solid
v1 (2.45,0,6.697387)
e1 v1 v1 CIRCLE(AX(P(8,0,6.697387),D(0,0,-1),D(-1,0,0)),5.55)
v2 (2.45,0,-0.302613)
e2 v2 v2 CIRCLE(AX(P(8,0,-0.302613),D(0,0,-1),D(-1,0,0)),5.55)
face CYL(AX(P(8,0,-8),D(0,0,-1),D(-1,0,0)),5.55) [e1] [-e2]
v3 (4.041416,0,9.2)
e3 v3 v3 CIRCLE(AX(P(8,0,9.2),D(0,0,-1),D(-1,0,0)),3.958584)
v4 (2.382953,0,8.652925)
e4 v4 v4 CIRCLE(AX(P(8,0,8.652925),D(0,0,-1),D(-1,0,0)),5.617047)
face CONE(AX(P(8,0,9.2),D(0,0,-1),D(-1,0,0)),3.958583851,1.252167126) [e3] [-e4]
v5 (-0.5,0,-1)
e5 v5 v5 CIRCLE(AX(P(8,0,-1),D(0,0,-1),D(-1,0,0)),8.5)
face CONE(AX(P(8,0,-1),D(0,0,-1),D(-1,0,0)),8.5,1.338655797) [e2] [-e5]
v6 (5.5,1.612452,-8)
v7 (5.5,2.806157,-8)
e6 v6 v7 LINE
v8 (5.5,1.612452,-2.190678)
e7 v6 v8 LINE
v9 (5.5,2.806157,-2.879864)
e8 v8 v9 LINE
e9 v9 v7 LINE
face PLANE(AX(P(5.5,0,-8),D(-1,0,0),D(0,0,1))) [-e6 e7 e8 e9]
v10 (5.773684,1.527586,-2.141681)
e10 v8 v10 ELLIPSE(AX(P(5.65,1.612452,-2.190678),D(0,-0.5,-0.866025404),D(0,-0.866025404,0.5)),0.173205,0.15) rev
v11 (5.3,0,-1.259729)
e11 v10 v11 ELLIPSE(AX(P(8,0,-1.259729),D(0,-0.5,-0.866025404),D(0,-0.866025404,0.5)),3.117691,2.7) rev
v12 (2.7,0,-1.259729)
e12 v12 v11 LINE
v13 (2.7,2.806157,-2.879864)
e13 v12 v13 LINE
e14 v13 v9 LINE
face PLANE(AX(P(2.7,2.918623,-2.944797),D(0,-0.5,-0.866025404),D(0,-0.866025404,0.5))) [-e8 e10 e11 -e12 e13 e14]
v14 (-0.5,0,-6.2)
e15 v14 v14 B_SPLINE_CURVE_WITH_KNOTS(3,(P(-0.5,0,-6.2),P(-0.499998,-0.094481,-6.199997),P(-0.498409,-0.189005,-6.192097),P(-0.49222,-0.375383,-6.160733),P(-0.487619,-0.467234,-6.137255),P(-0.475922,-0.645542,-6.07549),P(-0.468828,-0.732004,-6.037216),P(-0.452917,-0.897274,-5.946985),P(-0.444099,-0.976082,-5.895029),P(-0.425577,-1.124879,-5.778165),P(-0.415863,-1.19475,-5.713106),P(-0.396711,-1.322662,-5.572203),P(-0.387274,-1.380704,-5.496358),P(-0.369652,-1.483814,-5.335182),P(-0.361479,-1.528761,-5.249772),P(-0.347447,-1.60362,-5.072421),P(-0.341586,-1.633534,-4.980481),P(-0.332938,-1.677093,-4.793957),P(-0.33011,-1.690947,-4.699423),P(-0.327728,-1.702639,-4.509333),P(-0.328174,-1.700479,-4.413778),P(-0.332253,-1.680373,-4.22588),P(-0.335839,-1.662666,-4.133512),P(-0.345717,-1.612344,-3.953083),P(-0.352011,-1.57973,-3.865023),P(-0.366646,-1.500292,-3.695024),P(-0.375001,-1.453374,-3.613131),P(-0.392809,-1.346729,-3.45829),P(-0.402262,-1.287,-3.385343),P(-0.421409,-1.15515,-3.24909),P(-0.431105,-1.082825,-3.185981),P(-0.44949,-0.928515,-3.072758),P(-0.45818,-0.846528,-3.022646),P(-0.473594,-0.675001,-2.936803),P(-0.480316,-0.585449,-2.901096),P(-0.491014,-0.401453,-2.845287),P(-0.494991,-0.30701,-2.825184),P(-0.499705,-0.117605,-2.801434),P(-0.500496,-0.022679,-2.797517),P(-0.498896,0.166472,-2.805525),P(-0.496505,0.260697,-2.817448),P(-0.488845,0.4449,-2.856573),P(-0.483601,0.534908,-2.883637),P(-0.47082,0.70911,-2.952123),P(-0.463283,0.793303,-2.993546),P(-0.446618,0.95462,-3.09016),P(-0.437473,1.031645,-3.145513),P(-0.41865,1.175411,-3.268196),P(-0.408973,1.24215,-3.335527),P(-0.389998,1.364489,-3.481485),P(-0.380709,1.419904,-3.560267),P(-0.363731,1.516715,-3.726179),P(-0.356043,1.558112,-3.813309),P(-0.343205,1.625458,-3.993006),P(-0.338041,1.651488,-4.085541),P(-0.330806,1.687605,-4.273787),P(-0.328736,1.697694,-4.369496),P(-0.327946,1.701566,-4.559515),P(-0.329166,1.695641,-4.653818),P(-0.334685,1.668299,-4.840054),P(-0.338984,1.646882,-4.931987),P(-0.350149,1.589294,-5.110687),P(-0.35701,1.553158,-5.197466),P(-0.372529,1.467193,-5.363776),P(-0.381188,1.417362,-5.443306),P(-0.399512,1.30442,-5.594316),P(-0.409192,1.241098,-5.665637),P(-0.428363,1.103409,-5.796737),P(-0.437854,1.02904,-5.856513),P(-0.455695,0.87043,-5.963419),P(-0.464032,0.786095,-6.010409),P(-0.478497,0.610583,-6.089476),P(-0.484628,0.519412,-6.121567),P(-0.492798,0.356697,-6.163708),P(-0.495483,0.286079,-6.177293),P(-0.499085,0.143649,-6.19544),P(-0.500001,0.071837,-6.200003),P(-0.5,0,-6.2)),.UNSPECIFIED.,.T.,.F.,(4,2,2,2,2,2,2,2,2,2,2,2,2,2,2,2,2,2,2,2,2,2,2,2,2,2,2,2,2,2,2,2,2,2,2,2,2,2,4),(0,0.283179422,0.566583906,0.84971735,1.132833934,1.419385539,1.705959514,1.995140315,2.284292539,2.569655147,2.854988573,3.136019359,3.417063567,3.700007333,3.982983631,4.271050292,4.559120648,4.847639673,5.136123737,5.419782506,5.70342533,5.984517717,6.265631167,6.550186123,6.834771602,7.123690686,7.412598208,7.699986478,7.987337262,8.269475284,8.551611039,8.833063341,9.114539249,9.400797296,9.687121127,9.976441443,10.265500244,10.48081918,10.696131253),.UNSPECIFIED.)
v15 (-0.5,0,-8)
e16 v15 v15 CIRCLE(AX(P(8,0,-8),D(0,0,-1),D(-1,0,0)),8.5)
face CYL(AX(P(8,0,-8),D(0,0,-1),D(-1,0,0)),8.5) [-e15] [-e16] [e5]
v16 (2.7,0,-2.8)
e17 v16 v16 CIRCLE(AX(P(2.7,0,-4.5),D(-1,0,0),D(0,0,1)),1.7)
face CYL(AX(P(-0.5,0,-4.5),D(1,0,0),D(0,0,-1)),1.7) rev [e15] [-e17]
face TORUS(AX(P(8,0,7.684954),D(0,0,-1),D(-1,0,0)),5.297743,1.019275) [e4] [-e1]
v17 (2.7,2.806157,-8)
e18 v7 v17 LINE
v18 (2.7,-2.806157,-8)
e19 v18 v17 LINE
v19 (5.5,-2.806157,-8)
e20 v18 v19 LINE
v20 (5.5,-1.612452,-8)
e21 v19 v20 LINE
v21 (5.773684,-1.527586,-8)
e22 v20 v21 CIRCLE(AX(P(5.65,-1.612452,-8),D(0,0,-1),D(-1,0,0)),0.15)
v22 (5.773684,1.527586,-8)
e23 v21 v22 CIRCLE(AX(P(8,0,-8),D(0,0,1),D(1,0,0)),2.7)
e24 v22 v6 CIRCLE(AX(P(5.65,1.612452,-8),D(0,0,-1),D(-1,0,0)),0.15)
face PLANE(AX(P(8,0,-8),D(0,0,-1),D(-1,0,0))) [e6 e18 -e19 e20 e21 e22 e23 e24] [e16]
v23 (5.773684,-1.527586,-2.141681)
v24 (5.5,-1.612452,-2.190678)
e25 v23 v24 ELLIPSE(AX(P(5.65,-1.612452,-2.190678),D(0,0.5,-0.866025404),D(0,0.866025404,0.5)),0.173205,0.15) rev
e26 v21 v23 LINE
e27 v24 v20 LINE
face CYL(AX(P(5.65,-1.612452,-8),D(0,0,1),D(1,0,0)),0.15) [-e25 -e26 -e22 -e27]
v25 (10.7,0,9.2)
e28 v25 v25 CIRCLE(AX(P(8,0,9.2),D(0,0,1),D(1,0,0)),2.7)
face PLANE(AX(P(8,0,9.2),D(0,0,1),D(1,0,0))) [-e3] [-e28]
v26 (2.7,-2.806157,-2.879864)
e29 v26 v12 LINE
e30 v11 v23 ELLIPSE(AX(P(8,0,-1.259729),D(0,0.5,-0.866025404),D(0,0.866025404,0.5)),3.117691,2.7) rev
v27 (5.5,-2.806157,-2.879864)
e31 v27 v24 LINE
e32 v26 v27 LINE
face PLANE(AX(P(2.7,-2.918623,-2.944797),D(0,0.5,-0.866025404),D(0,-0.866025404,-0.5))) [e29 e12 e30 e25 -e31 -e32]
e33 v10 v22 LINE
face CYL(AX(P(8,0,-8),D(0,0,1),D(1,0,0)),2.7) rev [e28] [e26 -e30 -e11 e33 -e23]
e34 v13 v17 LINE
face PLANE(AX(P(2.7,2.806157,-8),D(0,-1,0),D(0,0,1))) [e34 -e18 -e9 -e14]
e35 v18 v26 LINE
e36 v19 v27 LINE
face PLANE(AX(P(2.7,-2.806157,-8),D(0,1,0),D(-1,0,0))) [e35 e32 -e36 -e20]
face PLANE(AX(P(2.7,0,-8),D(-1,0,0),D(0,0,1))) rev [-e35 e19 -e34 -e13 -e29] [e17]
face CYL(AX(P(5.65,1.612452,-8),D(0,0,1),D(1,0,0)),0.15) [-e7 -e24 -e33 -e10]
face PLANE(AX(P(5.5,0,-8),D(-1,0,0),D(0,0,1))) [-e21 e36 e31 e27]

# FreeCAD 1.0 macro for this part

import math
import FreeCAD as App
import Part
import Sketcher
Q = App.Units.Quantity


def edges_at(feature, points):
    """Names of the edges that pass closest to the given points."""
    edges = feature.Shape.Edges
    near = lambda p: min(range(len(edges)), key=lambda i: edges[i].distToShape(Part.Vertex(*p))[0])
    return sorted({f"Edge{near(p) + 1}" for p in points})

doc = App.newDocument("Part")
body = doc.addObject("PartDesign::Body", "Body")

sketch1 = doc.addObject("Sketcher::SketchObject", "Sketch")
body.addObject(sketch1)
sketch1.AttachmentSupport = (doc.XY_Plane, [""])
sketch1.MapMode = "FlatFace"
sketch1.addGeometry([
    Part.LineSegment(App.Vector(0, 8.5, 0), App.Vector(0, 0, 0)),
    Part.LineSegment(App.Vector(0, 0, 0), App.Vector(17.2, 0, 0)),
    Part.LineSegment(App.Vector(17.2, 0, 0), App.Vector(17.2, 4, 0)),
    Part.LineSegment(App.Vector(17.2, 4, 0), App.Vector(16.7, 5.6, 0)),
    Part.ArcOfCircle(Part.Circle(App.Vector(15.7, 5.3, 0), App.Vector(0, 0, 1), 1), math.radians(18), math.radians(166)),
    Part.LineSegment(App.Vector(14.7, 5.5, 0), App.Vector(7.7, 5.5, 0)),
    Part.LineSegment(App.Vector(7.7, 5.5, 0), App.Vector(7, 8.5, 0)),
    Part.LineSegment(App.Vector(7, 8.5, 0), App.Vector(0, 8.5, 0)),
], False)
sketch1.addConstraint([
    Sketcher.Constraint("Coincident", 0, 2, 1, 1),
    Sketcher.Constraint("Coincident", 1, 2, 2, 1),
    Sketcher.Constraint("Coincident", 2, 2, 3, 1),
    Sketcher.Constraint("Tangent", 3, 2, 4, 1),
    Sketcher.Constraint("Coincident", 4, 2, 5, 1),
    Sketcher.Constraint("Coincident", 5, 2, 6, 1),
    Sketcher.Constraint("Coincident", 6, 2, 7, 1),
    Sketcher.Constraint("Coincident", 7, 2, 0, 1),
    Sketcher.Constraint("Vertical", 0),
    Sketcher.Constraint("Horizontal", 1),
    Sketcher.Constraint("Vertical", 2),
    Sketcher.Constraint("Horizontal", 5),
    Sketcher.Constraint("Horizontal", 7),
    Sketcher.Constraint("Coincident", 0, 2, -1, 1),
    Sketcher.Constraint("Equal", 5, 7),
    Sketcher.Constraint("DistanceX", 5, 2, 5, 1, Q("7 mm")),
    Sketcher.Constraint("DistanceX", 1, 1, 1, 2, Q("17.2 mm")),
    Sketcher.Constraint("DistanceY", 0, 2, 0, 1, Q("8.5 mm")),
    Sketcher.Constraint("DistanceY", -1, 1, 4, 2, Q("5.55 mm")),
    Sketcher.Constraint("Radius", 4, Q("1.019275 mm")),
    Sketcher.Constraint("Distance", 6, Q("3.031311 mm")),
    Sketcher.Constraint("DistanceY", 2, 1, 2, 2, Q("3.958584 mm")),
    Sketcher.Constraint("DistanceY", 2, 2, 4, 3, Q("1.33916 mm")),
])
revolution = doc.addObject("PartDesign::Revolution", "Revolution")
body.addObject(revolution)
revolution.Profile = sketch1
revolution.ReferenceAxis = (sketch1, ["H_Axis"])
revolution.Angle = 360

sketch2 = doc.addObject("Sketcher::SketchObject", "Sketch001")
body.addObject(sketch2)
sketch2.AttachmentSupport = (doc.YZ_Plane, [""])
sketch2.MapMode = "FlatFace"
sketch2.AttachmentOffset = App.Placement(App.Vector(0, 0, 18.2), App.Rotation())
sketch2.addGeometry(Part.Circle(App.Vector(0, 0, 0), App.Vector(0, 0, 1), 2.7), False)
sketch2.addConstraint([
    Sketcher.Constraint("Coincident", 0, 3, -1, 1),
    Sketcher.Constraint("Diameter", 0, Q("5.4 mm")),
])
pocket1 = doc.addObject("PartDesign::Pocket", "Pocket")
body.addObject(pocket1)
pocket1.Profile = sketch2
pocket1.Type = "ThroughAll"

sketch3 = doc.addObject("Sketcher::SketchObject", "Sketch002")
body.addObject(sketch3)
sketch3.AttachmentSupport = (doc.XY_Plane, [""])
sketch3.MapMode = "FlatFace"
sketch3.AttachmentOffset = App.Placement(App.Vector(0, 0, 3.2), App.Rotation())
sketch3.addGeometry(Part.Circle(App.Vector(3.5, 0, 0), App.Vector(0, 0, 1), 1.7), False)
sketch3.addConstraint([
    Sketcher.Constraint("PointOnObject", 0, 3, -1),
    Sketcher.Constraint("Diameter", 0, Q("3.4 mm")),
    Sketcher.Constraint("DistanceX", -1, 1, 0, 3, Q("3.5 mm")),
])
pocket2 = doc.addObject("PartDesign::Pocket", "Pocket001")
body.addObject(pocket2)
pocket2.Profile = sketch3
pocket2.Type = "ThroughAll"
pocket2.Reversed = True

sketch4 = doc.addObject("Sketcher::SketchObject", "Sketch003")
body.addObject(sketch4)
sketch4.AttachmentSupport = (doc.XY_Plane, [""])
sketch4.MapMode = "FlatFace"
sketch4.AttachmentOffset = App.Placement(App.Vector(0, 0, 2.5), App.Rotation())
sketch4.addGeometry([
    Part.LineSegment(App.Vector(-1.1, 2.8, 0), App.Vector(-1.1, -2.8, 0)),
    Part.LineSegment(App.Vector(-1.1, -2.8, 0), App.Vector(5.1, -2.8, 0)),
    Part.LineSegment(App.Vector(5.1, -2.8, 0), App.Vector(6.7, 0, 0)),
    Part.LineSegment(App.Vector(6.7, 0, 0), App.Vector(5.1, 2.8, 0)),
    Part.LineSegment(App.Vector(5.1, 2.8, 0), App.Vector(-1.1, 2.8, 0)),
], False)
sketch4.addConstraint([
    Sketcher.Constraint("Coincident", 0, 2, 1, 1),
    Sketcher.Constraint("Coincident", 1, 2, 2, 1),
    Sketcher.Constraint("Coincident", 2, 2, 3, 1),
    Sketcher.Constraint("Coincident", 3, 2, 4, 1),
    Sketcher.Constraint("Coincident", 4, 2, 0, 1),
    Sketcher.Constraint("Vertical", 0),
    Sketcher.Constraint("Horizontal", 1),
    Sketcher.Constraint("Horizontal", 4),
    Sketcher.Constraint("Symmetric", 1, 2, 3, 2, -1),
    Sketcher.Constraint("PointOnObject", 2, 2, -1),
    Sketcher.Constraint("Angle", 2, Q("60 deg")),
    Sketcher.Constraint("DistanceX", 1, 1, 1, 2, Q("6.2326 mm")),
    Sketcher.Constraint("Distance", 2, Q("3.240271 mm")),
    Sketcher.Constraint("DistanceX", -1, 1, 2, 2, Q("6.740271 mm")),
])
pocket3 = doc.addObject("PartDesign::Pocket", "Pocket002")
body.addObject(pocket3)
pocket3.Profile = sketch4
pocket3.Length = 2.8
pocket3.Reversed = True
body2 = doc.addObject("PartDesign::Body", "Body001")
doc.recompute()

body.Placement = App.Placement(App.Vector(8, 0, -8), App.Rotation(App.Vector(0, -1, 0), 90))
boolean = doc.addObject("PartDesign::Boolean", "Boolean")
body2.addObject(boolean)
boolean.Type = "Fuse"
boolean.addObjects([body])
doc.recompute()

fillet = doc.addObject("PartDesign::Fillet", "Fillet")
body2.addObject(fillet)
fillet.Base = (boolean, edges_at(boolean, [(5.5, 1.02, -4.924), (5.5, -1.02, -4.924)]))
fillet.Radius = 0.15

doc.recompute()
